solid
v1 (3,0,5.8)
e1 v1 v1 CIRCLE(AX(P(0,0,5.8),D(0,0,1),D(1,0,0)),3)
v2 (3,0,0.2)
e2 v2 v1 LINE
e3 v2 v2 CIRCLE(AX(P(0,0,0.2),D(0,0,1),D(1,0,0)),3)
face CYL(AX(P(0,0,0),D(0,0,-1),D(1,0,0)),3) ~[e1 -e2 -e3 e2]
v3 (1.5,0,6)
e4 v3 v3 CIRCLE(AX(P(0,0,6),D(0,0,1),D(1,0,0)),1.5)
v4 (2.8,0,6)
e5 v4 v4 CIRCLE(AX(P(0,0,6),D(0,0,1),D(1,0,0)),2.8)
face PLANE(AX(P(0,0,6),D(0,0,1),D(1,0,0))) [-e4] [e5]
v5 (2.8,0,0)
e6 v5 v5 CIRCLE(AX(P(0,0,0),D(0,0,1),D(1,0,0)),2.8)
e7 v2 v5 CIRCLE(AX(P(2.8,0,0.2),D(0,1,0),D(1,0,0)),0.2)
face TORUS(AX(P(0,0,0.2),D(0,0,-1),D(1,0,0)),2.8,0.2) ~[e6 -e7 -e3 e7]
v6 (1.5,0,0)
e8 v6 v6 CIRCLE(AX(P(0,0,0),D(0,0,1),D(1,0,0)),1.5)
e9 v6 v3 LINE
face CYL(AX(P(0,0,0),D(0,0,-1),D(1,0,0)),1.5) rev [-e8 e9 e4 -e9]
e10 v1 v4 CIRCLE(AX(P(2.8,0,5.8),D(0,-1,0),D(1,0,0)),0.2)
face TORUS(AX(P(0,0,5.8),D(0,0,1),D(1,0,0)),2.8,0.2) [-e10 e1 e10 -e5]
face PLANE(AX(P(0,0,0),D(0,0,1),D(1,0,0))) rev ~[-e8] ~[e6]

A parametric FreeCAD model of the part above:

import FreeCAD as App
import Part
import Sketcher
from FreeCAD import Vector


def edges_at(feature, points):
    """Names of the edges that pass closest to the given points."""
    edges = feature.Shape.Edges
    near = lambda p: min(range(len(edges)), key=lambda i: edges[i].distToShape(Part.Vertex(*p))[0])
    return sorted({f"Edge{near(p) + 1}" for p in points})

doc = App.newDocument("Part")
body = doc.addObject("PartDesign::Body", "Body")

sketch1 = body.newObject("Sketcher::SketchObject", "Sketch")
sketch1.AttachmentSupport = (doc.getObject("XY_Plane"), [""])
sketch1.MapMode = "FlatFace"
sketch1.addGeometry([
    Part.Circle(Vector(0, 0, 0), Vector(0, 0, 1), 3),
    Part.Circle(Vector(0, 0, 0), Vector(0, 0, 1), 1.5),
], False)
sketch1.addConstraint([
    Sketcher.Constraint("Coincident", 0, 3, -1, 1),
    Sketcher.Constraint("Coincident", 1, 3, -1, 1),
    Sketcher.Constraint("Diameter", 0, 6.0),
    Sketcher.Constraint("Diameter", 1, 3.0),
])
pad1 = body.newObject("PartDesign::Pad", "Pad")
pad1.Profile = sketch1
pad1.Length = 6
doc.recompute()

fillet = body.newObject("PartDesign::Fillet", "Fillet")
fillet.Base = (pad1, edges_at(pad1, [(-3, 0, 0), (-3, 0, 6)]))
fillet.Radius = 0.2

doc.recompute()
